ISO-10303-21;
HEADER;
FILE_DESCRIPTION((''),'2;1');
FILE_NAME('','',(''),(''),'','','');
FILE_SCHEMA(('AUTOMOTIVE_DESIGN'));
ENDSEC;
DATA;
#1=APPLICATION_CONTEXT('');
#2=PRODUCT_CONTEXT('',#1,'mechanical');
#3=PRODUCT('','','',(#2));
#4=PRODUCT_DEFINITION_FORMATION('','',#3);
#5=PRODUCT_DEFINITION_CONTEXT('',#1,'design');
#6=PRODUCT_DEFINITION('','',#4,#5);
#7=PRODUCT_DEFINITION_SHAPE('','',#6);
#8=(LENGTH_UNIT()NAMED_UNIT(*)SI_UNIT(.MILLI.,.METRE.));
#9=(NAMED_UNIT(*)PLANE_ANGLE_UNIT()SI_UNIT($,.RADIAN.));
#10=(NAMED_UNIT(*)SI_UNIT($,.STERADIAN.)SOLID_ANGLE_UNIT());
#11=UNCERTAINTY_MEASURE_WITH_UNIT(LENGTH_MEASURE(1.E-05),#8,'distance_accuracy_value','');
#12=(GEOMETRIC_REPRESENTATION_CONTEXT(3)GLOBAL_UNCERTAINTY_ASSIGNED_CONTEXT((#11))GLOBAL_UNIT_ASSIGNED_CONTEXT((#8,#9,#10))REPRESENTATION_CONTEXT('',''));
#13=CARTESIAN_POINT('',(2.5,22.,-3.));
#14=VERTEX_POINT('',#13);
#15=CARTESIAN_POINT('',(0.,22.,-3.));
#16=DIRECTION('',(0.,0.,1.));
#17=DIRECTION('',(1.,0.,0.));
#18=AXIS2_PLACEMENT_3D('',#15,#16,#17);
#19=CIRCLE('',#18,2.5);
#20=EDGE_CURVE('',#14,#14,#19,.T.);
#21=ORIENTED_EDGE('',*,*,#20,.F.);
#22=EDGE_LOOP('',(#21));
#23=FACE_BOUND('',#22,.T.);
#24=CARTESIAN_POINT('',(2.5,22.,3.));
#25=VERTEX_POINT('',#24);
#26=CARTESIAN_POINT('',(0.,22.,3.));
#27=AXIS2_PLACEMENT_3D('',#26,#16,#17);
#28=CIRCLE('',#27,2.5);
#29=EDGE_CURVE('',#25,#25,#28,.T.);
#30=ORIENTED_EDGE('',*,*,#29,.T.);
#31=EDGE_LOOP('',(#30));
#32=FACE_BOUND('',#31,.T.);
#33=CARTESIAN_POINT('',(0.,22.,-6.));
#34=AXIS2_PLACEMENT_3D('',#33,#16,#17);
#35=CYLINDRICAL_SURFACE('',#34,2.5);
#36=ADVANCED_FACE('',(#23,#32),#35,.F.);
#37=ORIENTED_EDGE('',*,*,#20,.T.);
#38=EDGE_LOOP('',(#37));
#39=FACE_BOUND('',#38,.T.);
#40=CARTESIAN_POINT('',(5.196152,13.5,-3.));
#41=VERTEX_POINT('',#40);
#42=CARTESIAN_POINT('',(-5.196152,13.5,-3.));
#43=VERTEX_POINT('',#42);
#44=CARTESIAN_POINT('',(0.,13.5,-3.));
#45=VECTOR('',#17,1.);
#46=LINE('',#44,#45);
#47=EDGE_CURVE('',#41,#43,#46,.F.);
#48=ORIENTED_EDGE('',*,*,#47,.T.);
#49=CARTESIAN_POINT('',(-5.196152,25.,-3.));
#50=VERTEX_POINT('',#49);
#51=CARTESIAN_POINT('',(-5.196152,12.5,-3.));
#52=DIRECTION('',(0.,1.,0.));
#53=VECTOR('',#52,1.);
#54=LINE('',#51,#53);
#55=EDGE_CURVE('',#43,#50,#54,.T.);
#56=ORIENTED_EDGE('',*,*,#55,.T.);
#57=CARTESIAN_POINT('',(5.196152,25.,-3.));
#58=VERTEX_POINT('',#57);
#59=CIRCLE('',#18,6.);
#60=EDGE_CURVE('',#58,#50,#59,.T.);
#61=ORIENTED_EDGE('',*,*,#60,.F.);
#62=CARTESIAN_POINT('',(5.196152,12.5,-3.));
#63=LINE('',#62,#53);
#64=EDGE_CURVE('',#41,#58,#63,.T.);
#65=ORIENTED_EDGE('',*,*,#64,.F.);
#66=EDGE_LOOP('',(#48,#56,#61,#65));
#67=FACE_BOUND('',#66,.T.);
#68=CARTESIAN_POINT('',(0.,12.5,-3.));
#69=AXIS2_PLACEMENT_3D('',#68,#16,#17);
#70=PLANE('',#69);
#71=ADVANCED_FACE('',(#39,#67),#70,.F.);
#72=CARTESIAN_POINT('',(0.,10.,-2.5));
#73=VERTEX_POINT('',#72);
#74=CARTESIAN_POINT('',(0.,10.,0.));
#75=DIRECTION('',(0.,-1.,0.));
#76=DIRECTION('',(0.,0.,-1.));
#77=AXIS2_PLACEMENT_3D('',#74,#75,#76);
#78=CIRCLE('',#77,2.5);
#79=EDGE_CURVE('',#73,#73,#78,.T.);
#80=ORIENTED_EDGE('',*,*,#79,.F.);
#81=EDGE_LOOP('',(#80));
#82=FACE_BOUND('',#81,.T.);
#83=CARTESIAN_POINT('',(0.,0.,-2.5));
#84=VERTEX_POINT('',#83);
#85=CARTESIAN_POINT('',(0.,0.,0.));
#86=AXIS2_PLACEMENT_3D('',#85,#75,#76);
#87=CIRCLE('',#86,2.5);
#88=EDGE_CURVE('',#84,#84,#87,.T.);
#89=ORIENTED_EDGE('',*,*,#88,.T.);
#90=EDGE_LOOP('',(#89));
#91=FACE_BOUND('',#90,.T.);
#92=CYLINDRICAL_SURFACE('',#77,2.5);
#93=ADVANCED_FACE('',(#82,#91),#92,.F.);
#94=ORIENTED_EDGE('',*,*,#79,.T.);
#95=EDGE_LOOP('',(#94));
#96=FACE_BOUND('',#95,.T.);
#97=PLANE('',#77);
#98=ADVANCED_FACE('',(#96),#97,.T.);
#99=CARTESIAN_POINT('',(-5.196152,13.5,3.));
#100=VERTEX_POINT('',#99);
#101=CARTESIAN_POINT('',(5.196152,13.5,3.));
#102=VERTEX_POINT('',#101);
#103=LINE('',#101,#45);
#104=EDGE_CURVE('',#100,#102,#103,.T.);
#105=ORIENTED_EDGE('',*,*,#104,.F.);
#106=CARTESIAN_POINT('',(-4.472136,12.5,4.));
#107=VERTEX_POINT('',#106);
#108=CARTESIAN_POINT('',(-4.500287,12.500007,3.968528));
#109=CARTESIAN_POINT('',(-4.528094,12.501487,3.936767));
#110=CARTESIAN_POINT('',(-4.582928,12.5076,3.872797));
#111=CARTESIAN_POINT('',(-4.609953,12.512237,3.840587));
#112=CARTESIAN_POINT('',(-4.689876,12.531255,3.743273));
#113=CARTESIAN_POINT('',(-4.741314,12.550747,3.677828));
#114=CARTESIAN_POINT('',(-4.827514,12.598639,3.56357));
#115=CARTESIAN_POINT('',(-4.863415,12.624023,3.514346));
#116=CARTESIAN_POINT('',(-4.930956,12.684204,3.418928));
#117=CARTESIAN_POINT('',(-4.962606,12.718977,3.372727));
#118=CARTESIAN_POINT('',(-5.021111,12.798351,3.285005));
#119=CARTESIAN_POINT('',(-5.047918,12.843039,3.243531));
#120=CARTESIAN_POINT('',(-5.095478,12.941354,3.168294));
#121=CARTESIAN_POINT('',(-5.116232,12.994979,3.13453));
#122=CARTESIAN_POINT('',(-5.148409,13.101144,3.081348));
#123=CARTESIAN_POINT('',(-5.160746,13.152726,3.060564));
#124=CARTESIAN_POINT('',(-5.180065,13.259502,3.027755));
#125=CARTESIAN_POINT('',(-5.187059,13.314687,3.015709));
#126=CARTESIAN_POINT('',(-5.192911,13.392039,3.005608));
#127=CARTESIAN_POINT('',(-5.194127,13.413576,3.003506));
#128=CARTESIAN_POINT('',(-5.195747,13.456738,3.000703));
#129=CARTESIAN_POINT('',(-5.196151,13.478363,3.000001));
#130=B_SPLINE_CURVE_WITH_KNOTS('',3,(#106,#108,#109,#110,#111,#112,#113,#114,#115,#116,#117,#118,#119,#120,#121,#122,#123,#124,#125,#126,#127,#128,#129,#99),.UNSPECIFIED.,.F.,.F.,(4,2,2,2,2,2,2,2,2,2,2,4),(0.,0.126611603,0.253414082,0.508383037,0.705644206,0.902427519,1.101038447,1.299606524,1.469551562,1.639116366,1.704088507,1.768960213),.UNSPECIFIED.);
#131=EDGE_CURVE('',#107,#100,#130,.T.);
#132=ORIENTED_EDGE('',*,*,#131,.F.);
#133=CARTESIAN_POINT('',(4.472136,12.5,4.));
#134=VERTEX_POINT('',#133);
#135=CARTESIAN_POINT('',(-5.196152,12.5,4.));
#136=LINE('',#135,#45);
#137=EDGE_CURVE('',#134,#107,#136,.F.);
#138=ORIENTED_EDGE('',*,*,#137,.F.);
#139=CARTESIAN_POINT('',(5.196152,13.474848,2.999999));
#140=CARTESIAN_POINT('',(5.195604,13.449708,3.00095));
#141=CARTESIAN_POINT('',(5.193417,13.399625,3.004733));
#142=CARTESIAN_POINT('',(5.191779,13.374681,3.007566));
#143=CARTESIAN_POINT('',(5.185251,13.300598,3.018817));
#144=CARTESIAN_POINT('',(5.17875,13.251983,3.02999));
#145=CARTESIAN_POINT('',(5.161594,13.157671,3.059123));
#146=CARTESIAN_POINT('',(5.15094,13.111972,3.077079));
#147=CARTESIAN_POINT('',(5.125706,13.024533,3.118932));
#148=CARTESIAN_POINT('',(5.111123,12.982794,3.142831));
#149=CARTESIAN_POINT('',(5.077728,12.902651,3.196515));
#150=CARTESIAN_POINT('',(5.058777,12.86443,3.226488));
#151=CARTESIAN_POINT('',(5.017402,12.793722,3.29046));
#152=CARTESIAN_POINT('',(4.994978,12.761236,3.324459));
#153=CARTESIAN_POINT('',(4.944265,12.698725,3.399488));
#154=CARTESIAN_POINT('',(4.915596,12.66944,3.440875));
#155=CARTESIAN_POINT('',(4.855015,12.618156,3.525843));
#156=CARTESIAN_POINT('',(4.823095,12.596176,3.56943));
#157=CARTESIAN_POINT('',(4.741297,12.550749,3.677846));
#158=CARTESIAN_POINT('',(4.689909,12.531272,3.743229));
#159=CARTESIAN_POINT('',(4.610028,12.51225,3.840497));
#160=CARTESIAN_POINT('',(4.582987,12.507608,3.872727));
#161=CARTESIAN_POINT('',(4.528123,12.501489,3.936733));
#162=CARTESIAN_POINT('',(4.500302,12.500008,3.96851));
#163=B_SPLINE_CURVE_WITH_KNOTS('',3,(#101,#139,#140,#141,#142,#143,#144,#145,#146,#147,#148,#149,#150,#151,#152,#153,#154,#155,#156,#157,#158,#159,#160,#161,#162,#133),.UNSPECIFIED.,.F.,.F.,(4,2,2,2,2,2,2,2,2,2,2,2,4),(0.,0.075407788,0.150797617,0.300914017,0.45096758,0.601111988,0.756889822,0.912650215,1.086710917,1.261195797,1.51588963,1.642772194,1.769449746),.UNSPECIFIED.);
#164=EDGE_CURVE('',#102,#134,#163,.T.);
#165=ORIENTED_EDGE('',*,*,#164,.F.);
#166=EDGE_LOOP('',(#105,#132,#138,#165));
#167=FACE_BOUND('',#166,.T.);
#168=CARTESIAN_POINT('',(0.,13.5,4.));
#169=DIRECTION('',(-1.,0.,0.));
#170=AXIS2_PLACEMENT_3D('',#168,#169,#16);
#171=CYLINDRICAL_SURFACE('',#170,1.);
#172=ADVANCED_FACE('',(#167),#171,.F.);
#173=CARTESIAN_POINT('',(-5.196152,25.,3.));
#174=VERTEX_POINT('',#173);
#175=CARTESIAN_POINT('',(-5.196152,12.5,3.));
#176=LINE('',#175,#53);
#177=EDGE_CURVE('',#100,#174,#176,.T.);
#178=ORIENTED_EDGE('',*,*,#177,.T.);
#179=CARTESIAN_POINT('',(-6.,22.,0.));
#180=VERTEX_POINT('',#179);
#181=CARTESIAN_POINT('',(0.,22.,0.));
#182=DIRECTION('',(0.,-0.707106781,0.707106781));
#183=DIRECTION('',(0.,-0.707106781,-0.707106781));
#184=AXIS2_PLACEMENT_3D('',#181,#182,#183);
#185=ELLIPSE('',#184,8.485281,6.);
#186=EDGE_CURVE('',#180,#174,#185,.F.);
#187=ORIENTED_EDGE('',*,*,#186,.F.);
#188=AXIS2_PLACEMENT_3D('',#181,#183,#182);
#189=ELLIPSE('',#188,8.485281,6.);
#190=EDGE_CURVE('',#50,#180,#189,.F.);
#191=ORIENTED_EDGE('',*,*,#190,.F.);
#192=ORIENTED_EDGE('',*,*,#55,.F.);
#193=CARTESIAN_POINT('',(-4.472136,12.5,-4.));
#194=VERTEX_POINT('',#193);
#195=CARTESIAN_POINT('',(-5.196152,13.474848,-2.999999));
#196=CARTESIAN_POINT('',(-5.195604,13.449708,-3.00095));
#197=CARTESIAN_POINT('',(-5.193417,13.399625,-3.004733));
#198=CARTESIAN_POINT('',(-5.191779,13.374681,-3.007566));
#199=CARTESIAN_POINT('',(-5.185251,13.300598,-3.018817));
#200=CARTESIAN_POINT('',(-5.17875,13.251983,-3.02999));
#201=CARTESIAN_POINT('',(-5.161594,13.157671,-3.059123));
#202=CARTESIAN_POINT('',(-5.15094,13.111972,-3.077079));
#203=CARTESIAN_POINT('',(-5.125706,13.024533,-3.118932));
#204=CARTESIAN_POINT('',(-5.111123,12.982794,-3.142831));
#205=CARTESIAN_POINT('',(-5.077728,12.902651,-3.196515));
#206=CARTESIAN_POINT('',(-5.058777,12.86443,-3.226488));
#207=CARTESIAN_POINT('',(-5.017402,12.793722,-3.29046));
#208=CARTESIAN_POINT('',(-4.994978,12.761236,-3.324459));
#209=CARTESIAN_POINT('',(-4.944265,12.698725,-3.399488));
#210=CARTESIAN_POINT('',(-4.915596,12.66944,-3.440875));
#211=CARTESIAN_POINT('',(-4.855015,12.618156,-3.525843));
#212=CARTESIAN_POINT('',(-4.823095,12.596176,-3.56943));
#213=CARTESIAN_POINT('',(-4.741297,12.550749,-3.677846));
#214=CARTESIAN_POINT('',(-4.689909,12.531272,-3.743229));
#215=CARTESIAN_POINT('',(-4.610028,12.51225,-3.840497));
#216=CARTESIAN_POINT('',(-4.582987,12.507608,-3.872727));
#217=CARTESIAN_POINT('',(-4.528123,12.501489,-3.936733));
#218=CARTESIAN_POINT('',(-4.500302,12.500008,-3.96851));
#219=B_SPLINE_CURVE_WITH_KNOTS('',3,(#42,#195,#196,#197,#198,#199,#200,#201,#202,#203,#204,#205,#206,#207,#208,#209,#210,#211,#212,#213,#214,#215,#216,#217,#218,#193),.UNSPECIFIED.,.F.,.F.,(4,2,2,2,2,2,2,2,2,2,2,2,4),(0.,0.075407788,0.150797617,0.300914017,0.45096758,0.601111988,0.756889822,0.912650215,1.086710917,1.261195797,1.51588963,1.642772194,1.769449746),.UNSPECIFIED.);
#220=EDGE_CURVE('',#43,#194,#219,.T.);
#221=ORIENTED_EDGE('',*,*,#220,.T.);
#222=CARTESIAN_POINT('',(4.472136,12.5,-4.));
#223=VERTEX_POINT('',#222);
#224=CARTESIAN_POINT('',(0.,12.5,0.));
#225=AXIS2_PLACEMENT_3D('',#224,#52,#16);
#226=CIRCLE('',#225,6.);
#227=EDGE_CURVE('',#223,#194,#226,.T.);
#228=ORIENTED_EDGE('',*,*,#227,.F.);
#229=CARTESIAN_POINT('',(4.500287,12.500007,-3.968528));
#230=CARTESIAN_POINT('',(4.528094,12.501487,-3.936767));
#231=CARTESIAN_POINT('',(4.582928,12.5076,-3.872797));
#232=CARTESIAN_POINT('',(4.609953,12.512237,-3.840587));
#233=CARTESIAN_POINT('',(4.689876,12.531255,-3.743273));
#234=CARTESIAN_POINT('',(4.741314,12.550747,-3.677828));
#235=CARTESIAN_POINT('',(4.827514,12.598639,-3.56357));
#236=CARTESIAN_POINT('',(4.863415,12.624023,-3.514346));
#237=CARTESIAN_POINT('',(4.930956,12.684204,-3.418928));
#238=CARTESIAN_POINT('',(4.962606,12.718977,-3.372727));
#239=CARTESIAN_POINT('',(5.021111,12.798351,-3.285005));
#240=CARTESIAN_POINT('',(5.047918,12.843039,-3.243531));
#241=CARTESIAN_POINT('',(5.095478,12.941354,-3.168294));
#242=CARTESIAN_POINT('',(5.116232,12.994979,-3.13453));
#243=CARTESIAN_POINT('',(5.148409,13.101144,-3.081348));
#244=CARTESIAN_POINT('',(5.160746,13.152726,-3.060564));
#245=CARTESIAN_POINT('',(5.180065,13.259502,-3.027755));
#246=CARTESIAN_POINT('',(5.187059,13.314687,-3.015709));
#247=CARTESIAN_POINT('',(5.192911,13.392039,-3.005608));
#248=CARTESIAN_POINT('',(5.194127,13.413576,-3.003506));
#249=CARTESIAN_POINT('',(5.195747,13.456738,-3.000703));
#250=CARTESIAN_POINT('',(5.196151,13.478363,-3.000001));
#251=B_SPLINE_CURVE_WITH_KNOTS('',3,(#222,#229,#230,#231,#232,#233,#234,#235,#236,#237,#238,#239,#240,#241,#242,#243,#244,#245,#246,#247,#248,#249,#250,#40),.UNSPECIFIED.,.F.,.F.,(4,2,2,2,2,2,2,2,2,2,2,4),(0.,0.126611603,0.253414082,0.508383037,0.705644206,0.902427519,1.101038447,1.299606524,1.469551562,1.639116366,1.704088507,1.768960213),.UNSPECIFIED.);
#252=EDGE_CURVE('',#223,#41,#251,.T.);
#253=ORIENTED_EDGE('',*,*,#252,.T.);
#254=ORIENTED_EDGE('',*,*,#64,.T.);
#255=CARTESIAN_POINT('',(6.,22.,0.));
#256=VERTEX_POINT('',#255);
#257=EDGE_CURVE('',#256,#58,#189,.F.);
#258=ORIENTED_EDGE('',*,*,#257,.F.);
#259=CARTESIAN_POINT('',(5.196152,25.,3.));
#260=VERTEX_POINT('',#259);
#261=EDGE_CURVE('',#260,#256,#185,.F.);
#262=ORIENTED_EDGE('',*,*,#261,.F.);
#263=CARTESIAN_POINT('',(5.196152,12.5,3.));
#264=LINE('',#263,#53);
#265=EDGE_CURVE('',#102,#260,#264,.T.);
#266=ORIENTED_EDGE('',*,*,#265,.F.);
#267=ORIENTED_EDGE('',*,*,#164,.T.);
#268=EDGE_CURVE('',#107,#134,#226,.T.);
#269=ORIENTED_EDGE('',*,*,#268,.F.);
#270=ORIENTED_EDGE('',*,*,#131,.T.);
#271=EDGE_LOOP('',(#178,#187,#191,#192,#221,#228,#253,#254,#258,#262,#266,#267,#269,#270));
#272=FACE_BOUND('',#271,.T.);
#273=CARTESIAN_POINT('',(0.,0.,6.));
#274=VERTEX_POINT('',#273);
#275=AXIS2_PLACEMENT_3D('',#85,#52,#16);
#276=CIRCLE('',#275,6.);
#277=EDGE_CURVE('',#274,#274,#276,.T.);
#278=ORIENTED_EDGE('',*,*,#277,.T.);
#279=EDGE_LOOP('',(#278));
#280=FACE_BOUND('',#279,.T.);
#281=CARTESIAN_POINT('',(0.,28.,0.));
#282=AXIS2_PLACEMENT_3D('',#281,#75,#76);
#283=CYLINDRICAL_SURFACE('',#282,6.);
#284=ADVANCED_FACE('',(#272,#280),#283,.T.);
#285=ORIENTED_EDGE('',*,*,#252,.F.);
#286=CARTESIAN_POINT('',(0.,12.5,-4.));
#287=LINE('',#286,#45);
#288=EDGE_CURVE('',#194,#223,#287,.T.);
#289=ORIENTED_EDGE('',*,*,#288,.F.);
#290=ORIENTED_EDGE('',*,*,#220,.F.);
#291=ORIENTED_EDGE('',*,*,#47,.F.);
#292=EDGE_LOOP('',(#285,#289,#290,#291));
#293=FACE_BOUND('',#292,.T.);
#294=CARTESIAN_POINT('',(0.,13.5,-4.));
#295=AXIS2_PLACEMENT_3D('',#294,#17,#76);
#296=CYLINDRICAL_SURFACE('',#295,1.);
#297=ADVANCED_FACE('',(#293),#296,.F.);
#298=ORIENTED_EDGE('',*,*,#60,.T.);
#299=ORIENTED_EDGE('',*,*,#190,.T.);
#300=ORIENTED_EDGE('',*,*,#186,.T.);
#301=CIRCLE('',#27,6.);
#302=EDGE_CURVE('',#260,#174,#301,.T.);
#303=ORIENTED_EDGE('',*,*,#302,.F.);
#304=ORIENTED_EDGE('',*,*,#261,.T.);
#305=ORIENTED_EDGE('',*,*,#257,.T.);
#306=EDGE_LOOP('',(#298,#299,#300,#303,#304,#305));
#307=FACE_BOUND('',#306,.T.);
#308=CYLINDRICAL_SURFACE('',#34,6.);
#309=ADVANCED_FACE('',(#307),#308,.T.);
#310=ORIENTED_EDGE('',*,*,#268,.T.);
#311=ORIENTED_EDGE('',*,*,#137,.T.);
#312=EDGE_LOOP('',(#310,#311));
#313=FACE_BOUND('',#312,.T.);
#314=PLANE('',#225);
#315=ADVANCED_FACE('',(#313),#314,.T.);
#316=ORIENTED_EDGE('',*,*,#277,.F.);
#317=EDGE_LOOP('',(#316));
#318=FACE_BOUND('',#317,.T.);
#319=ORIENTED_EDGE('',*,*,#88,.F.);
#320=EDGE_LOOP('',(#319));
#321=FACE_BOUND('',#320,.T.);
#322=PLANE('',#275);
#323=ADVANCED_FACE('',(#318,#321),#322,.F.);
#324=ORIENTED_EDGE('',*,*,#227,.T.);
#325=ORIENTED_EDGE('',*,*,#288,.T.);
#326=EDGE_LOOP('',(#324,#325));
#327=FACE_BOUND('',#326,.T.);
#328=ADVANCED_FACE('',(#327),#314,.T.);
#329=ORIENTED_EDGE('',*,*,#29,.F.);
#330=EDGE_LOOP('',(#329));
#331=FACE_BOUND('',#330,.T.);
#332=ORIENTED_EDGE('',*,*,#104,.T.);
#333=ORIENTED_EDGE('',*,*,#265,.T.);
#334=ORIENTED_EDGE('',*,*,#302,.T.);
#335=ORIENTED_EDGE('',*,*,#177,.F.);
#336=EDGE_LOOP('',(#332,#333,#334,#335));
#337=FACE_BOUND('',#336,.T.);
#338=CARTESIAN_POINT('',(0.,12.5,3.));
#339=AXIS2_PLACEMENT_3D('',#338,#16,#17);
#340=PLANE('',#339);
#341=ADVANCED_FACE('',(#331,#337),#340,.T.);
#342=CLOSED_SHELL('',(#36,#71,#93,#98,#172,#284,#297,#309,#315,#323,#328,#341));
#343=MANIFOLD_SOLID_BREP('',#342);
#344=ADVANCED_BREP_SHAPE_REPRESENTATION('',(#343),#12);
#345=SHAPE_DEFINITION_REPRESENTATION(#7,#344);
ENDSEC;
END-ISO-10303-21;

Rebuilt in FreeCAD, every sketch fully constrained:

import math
import FreeCAD as App
import Part
import Sketcher
from FreeCAD import Vector


def edges_at(feature, points):
    """Names of the edges that pass closest to the given points."""
    edges = feature.Shape.Edges
    near = lambda p: min(range(len(edges)), key=lambda i: edges[i].distToShape(Part.Vertex(*p))[0])
    return sorted({f"Edge{near(p) + 1}" for p in points})

doc = App.newDocument("Part")
body = doc.addObject("PartDesign::Body", "Body")

# Sketch on XZ plane
sketch1 = body.newObject("Sketcher::SketchObject", "Sketch")
sketch1.AttachmentSupport = (doc.getObject("XZ_Plane"), [""])
sketch1.MapMode = "FlatFace"
sketch1.addGeometry(Part.Circle(Vector(0, 0, 0), Vector(0, 0, 1), 6), False)
sketch1.addConstraint([
    Sketcher.Constraint("Coincident", 0, 3, -1, 1),
    Sketcher.Constraint("Diameter", 0, 12.0),
])
pad1 = body.newObject("PartDesign::Pad", "Pad")
pad1.Profile = sketch1
pad1.Length = 28
pad1.Reversed = True

# Sketch on XZ plane
sketch2 = body.newObject("Sketcher::SketchObject", "Sketch001")
sketch2.AttachmentSupport = (doc.getObject("XZ_Plane"), [""])
sketch2.MapMode = "FlatFace"
sketch2.AttachmentOffset = App.Placement(Vector(0, 0, -12.5), App.Rotation())
sketch2.addGeometry([
    Part.ArcOfCircle(Part.Circle(Vector(0, 0, 0), Vector(0, 0, 1), 6), math.radians(-150), math.radians(-30)),
    Part.LineSegment(Vector(-5, -3, 0), Vector(5, -3, 0)),
    Part.LineSegment(Vector(5, 3, 0), Vector(-5, 3, 0)),
    Part.ArcOfCircle(Part.Circle(Vector(0, 0, 0), Vector(0, 0, 1), 6), math.radians(30), math.radians(150)),
], False)
sketch2.addConstraint([
    Sketcher.Constraint("Coincident", 0, 1, 1, 1),
    Sketcher.Constraint("Coincident", 1, 2, 0, 2),
    Sketcher.Constraint("Coincident", 2, 1, 3, 1),
    Sketcher.Constraint("Coincident", 3, 2, 2, 2),
    Sketcher.Constraint("Horizontal", 1),
    Sketcher.Constraint("Horizontal", 2),
    Sketcher.Constraint("Coincident", 0, 3, -1, 1),
    Sketcher.Constraint("Coincident", 3, 3, -1, 1),
    Sketcher.Constraint("Equal", 0, 3),
    Sketcher.Constraint("Vertical", 1, 2, 2, 1),
    Sketcher.Constraint("Radius", 0, 6.0),
    Sketcher.Constraint("DistanceY", 0, 1, -1, 1, 3.0),
])
pocket1 = body.newObject("PartDesign::Pocket", "Pocket")
pocket1.Profile = sketch2
pocket1.Length = 15.5

# Sketch on XY plane
sketch3 = body.newObject("Sketcher::SketchObject", "Sketch002")
sketch3.AttachmentSupport = (doc.getObject("XY_Plane"), [""])
sketch3.MapMode = "FlatFace"
sketch3.AttachmentOffset = App.Placement(Vector(0, 0, 3), App.Rotation())
sketch3.addGeometry([
    Part.ArcOfCircle(Part.Circle(Vector(0, 22, 0), Vector(0, 0, 1), 6), math.radians(90), math.radians(150)),  # 0
    Part.LineSegment(Vector(0, 28, 0), Vector(-5.2, 28, 0)),  # 1
    Part.LineSegment(Vector(-5.2, 28, 0), Vector(-5.2, 25, 0)),  # 2
    Part.ArcOfCircle(Part.Circle(Vector(0, 22, 0), Vector(0, 0, 1), 6), math.radians(30), math.radians(90)),  # 3
    Part.LineSegment(Vector(5.2, 25, 0), Vector(5.2, 28, 0)),  # 4
    Part.LineSegment(Vector(5.2, 28, 0), Vector(0, 28, 0)),  # 5
], False)
sketch3.addConstraint([
    Sketcher.Constraint("Tangent", 0, 1, 1, 1),
    Sketcher.Constraint("Coincident", 1, 2, 2, 1),
    Sketcher.Constraint("Coincident", 2, 2, 0, 2),
    Sketcher.Constraint("Coincident", 3, 1, 4, 1),
    Sketcher.Constraint("Coincident", 4, 2, 5, 1),
    Sketcher.Constraint("Tangent", 5, 2, 3, 2),
    Sketcher.Constraint("Horizontal", 1),
    Sketcher.Constraint("Vertical", 2),
    Sketcher.Constraint("Vertical", 4),
    Sketcher.Constraint("Horizontal", 5),
    Sketcher.Constraint("Coincident", 3, 3, 0, 3),
    Sketcher.Constraint("Equal", 0, 3),
    Sketcher.Constraint("Symmetric", 2, 2, 3, 1, -2),
    Sketcher.Constraint("Radius", 0, 6.0),
    Sketcher.Constraint("DistanceY", 2, 2, 2, 1, 3.0),
    Sketcher.Constraint("DistanceY", -1, 1, 0, 3, 22.0),
])
pocket2 = body.newObject("PartDesign::Pocket", "Pocket001")
pocket2.Profile = sketch3
pocket2.Type = "ThroughAll"

# Sketch on XY plane
sketch4 = body.newObject("Sketcher::SketchObject", "Sketch003")
sketch4.AttachmentSupport = (doc.getObject("XY_Plane"), [""])
sketch4.MapMode = "FlatFace"
sketch4.AttachmentOffset = App.Placement(Vector(0, 0, 3), App.Rotation())
sketch4.addGeometry(Part.Circle(Vector(0, 22, 0), Vector(0, 0, 1), 2.5), False)
sketch4.addConstraint([
    Sketcher.Constraint("PointOnObject", 0, 3, -2),
    Sketcher.Constraint("Diameter", 0, 5.0),
    Sketcher.Constraint("DistanceY", -1, 1, 0, 3, 22.0),
])
pocket3 = body.newObject("PartDesign::Pocket", "Pocket002")
pocket3.Profile = sketch4
pocket3.Type = "ThroughAll"
doc.recompute()

fillet = body.newObject("PartDesign::Fillet", "Fillet")
fillet.Base = (pocket3, edges_at(pocket3, [(0, 12.5, -3), (0, 12.5, 3)]))
fillet.Radius = 1

# Sketch on XY plane
sketch5 = body.newObject("Sketcher::SketchObject", "Sketch004")
sketch5.AttachmentSupport = (doc.getObject("XY_Plane"), [""])
sketch5.MapMode = "FlatFace"
sketch5.AttachmentOffset = App.Placement(Vector(0, 0, 3), App.Rotation())
sketch5.addGeometry([
    Part.LineSegment(Vector(-6, 28, 0), Vector(-6, 22, 0)),  # 0
    Part.ArcOfCircle(Part.Circle(Vector(0, 22, 0), Vector(0, 0, 1), 6), math.radians(150), math.radians(180)),  # 1
    Part.ArcOfCircle(Part.Circle(Vector(0, 22, 0), Vector(0, 0, 1), 6), math.radians(90), math.radians(150)),  # 2
    Part.LineSegment(Vector(0, 28, 0), Vector(-6, 28, 0)),  # 3
    Part.ArcOfCircle(Part.Circle(Vector(0, 22, 0), Vector(0, 0, 1), 6), math.radians(0), math.radians(30)),  # 4
    Part.LineSegment(Vector(6, 22, 0), Vector(6, 28, 0)),  # 5
    Part.LineSegment(Vector(6, 28, 0), Vector(0, 28, 0)),  # 6
    Part.ArcOfCircle(Part.Circle(Vector(0, 22, 0), Vector(0, 0, 1), 6), math.radians(30), math.radians(90)),  # 7
], False)
sketch5.addConstraint([
    Sketcher.Constraint("Tangent", 0, 2, 1, 2),
    Sketcher.Constraint("Tangent", 1, 1, 2, 2),
    Sketcher.Constraint("Tangent", 2, 1, 3, 1),
    Sketcher.Constraint("Coincident", 3, 2, 0, 1),
    Sketcher.Constraint("Tangent", 4, 1, 5, 1),
    Sketcher.Constraint("Coincident", 5, 2, 6, 1),
    Sketcher.Constraint("Tangent", 6, 2, 7, 2),
    Sketcher.Constraint("Tangent", 7, 1, 4, 2),
    Sketcher.Constraint("Vertical", 0),
    Sketcher.Constraint("Horizontal", 3),
    Sketcher.Constraint("Vertical", 5),
    Sketcher.Constraint("Horizontal", 6),
    Sketcher.Constraint("Coincident", 4, 3, 1, 3),
    Sketcher.Constraint("Coincident", 6, 2, 2, 1),
    Sketcher.Constraint("Equal", 1, 2),
    Sketcher.Constraint("Symmetric", 1, 1, 7, 1, -2),
    Sketcher.Constraint("Radius", 1, 6.0),
    Sketcher.Constraint("DistanceY", -1, 1, 1, 3, 22.0),
    Sketcher.Constraint("DistanceY", -1, 1, 1, 1, 25.0),
])
pocket4 = body.newObject("PartDesign::Pocket", "Pocket003")
pocket4.Profile = sketch5
pocket4.Type = "ThroughAll"

# Sketch on XZ plane
sketch6 = body.newObject("Sketcher::SketchObject", "Sketch005")
sketch6.AttachmentSupport = (doc.getObject("XZ_Plane"), [""])
sketch6.MapMode = "FlatFace"
sketch6.addGeometry(Part.Circle(Vector(0, 0, 0), Vector(0, 0, 1), 2.5), False)
sketch6.addConstraint([
    Sketcher.Constraint("Coincident", 0, 3, -1, 1),
    Sketcher.Constraint("Diameter", 0, 5.0),
])
pocket5 = body.newObject("PartDesign::Pocket", "Pocket004")
pocket5.Profile = sketch6
pocket5.Length = 10

doc.recompute()
